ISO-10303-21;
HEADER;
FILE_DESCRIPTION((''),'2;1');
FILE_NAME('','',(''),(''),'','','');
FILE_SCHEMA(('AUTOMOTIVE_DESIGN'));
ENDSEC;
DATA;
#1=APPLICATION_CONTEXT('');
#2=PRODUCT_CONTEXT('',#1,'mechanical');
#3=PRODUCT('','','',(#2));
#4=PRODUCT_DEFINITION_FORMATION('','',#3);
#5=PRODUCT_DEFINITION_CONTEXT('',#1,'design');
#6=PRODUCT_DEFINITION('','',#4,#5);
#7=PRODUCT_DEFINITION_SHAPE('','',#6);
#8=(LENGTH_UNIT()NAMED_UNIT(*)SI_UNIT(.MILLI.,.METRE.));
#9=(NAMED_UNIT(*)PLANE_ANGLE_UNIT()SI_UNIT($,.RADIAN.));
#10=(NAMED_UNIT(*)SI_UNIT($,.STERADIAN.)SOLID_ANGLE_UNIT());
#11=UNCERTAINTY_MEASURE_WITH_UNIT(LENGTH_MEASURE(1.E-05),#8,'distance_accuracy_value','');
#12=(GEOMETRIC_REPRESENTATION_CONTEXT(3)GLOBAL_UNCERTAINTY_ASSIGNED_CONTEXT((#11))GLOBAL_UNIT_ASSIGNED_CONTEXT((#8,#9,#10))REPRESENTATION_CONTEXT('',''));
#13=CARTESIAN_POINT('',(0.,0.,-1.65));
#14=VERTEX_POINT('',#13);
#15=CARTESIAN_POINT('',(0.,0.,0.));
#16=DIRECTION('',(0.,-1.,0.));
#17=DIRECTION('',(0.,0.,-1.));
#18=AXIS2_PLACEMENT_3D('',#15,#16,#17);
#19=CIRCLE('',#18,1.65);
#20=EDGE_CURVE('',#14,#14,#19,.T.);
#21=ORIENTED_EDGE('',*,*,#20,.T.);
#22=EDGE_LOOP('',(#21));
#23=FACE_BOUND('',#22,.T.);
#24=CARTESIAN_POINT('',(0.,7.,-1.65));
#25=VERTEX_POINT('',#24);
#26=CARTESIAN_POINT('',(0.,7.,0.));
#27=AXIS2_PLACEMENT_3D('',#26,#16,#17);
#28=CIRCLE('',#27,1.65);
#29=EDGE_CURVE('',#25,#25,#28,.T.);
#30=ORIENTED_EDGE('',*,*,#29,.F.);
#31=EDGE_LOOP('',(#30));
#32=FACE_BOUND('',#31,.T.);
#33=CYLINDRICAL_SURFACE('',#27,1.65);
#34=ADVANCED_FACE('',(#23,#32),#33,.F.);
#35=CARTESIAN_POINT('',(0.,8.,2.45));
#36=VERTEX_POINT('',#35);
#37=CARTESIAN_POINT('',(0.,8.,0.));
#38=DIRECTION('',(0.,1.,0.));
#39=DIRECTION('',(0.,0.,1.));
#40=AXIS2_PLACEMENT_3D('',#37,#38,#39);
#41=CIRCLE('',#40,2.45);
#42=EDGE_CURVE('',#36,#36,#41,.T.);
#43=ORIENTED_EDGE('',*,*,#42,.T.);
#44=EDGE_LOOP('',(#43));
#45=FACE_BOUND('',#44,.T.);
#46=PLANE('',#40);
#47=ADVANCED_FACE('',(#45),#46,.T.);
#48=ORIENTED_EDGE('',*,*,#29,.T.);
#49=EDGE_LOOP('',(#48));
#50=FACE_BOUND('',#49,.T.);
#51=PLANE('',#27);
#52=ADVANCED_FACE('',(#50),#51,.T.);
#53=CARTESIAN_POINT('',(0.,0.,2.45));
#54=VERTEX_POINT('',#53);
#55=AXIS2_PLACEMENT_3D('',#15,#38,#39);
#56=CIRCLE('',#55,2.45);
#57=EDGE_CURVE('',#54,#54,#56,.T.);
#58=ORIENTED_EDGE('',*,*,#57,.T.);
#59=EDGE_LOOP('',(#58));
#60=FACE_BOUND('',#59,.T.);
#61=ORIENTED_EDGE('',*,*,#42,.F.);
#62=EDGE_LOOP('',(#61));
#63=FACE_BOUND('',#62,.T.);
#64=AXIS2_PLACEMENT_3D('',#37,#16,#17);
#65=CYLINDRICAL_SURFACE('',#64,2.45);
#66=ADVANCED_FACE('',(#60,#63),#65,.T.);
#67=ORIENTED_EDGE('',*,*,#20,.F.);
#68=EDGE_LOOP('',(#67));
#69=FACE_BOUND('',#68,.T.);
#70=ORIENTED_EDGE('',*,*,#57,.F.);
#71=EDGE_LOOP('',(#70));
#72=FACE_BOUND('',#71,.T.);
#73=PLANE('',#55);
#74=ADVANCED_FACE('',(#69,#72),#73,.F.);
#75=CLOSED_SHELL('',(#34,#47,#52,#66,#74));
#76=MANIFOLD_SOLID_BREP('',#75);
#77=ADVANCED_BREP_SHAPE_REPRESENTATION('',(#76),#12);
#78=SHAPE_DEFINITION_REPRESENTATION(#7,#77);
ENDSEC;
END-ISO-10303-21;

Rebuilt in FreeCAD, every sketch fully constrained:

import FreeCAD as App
import Part
import Sketcher

V = App.Vector
Q = App.Units.Quantity

doc = App.newDocument("Part")
body = doc.addObject("PartDesign::Body", "Body")

# Sketch on XZ plane
sketch1 = body.newObject("Sketcher::SketchObject", "Sketch")
sketch1.AttachmentSupport = (doc.getObject("XZ_Plane"), [""])
sketch1.MapMode = "FlatFace"
sketch1.addGeometry(Part.Circle(V(0, 0, 0), V(0, 0, 1), 2.45), False)
sketch1.addConstraint([
    Sketcher.Constraint("Coincident", 0, 3, -1, 1),
    Sketcher.Constraint("Diameter", 0, Q("4.9 mm")),
])
pad1 = body.newObject("PartDesign::Pad", "Pad")
pad1.Profile = sketch1
pad1.Length = 8
pad1.Reversed = True

# Sketch on XZ plane
sketch2 = body.newObject("Sketcher::SketchObject", "Sketch001")
sketch2.AttachmentSupport = (doc.getObject("XZ_Plane"), [""])
sketch2.MapMode = "FlatFace"
sketch2.addGeometry(Part.Circle(V(0, 0, 0), V(0, 0, 1), 1.65), False)
sketch2.addConstraint([
    Sketcher.Constraint("Coincident", 0, 3, -1, 1),
    Sketcher.Constraint("Diameter", 0, Q("3.3 mm")),
])
pocket1 = body.newObject("PartDesign::Pocket", "Pocket")
pocket1.Profile = sketch2
pocket1.Length = 7

doc.recompute()
